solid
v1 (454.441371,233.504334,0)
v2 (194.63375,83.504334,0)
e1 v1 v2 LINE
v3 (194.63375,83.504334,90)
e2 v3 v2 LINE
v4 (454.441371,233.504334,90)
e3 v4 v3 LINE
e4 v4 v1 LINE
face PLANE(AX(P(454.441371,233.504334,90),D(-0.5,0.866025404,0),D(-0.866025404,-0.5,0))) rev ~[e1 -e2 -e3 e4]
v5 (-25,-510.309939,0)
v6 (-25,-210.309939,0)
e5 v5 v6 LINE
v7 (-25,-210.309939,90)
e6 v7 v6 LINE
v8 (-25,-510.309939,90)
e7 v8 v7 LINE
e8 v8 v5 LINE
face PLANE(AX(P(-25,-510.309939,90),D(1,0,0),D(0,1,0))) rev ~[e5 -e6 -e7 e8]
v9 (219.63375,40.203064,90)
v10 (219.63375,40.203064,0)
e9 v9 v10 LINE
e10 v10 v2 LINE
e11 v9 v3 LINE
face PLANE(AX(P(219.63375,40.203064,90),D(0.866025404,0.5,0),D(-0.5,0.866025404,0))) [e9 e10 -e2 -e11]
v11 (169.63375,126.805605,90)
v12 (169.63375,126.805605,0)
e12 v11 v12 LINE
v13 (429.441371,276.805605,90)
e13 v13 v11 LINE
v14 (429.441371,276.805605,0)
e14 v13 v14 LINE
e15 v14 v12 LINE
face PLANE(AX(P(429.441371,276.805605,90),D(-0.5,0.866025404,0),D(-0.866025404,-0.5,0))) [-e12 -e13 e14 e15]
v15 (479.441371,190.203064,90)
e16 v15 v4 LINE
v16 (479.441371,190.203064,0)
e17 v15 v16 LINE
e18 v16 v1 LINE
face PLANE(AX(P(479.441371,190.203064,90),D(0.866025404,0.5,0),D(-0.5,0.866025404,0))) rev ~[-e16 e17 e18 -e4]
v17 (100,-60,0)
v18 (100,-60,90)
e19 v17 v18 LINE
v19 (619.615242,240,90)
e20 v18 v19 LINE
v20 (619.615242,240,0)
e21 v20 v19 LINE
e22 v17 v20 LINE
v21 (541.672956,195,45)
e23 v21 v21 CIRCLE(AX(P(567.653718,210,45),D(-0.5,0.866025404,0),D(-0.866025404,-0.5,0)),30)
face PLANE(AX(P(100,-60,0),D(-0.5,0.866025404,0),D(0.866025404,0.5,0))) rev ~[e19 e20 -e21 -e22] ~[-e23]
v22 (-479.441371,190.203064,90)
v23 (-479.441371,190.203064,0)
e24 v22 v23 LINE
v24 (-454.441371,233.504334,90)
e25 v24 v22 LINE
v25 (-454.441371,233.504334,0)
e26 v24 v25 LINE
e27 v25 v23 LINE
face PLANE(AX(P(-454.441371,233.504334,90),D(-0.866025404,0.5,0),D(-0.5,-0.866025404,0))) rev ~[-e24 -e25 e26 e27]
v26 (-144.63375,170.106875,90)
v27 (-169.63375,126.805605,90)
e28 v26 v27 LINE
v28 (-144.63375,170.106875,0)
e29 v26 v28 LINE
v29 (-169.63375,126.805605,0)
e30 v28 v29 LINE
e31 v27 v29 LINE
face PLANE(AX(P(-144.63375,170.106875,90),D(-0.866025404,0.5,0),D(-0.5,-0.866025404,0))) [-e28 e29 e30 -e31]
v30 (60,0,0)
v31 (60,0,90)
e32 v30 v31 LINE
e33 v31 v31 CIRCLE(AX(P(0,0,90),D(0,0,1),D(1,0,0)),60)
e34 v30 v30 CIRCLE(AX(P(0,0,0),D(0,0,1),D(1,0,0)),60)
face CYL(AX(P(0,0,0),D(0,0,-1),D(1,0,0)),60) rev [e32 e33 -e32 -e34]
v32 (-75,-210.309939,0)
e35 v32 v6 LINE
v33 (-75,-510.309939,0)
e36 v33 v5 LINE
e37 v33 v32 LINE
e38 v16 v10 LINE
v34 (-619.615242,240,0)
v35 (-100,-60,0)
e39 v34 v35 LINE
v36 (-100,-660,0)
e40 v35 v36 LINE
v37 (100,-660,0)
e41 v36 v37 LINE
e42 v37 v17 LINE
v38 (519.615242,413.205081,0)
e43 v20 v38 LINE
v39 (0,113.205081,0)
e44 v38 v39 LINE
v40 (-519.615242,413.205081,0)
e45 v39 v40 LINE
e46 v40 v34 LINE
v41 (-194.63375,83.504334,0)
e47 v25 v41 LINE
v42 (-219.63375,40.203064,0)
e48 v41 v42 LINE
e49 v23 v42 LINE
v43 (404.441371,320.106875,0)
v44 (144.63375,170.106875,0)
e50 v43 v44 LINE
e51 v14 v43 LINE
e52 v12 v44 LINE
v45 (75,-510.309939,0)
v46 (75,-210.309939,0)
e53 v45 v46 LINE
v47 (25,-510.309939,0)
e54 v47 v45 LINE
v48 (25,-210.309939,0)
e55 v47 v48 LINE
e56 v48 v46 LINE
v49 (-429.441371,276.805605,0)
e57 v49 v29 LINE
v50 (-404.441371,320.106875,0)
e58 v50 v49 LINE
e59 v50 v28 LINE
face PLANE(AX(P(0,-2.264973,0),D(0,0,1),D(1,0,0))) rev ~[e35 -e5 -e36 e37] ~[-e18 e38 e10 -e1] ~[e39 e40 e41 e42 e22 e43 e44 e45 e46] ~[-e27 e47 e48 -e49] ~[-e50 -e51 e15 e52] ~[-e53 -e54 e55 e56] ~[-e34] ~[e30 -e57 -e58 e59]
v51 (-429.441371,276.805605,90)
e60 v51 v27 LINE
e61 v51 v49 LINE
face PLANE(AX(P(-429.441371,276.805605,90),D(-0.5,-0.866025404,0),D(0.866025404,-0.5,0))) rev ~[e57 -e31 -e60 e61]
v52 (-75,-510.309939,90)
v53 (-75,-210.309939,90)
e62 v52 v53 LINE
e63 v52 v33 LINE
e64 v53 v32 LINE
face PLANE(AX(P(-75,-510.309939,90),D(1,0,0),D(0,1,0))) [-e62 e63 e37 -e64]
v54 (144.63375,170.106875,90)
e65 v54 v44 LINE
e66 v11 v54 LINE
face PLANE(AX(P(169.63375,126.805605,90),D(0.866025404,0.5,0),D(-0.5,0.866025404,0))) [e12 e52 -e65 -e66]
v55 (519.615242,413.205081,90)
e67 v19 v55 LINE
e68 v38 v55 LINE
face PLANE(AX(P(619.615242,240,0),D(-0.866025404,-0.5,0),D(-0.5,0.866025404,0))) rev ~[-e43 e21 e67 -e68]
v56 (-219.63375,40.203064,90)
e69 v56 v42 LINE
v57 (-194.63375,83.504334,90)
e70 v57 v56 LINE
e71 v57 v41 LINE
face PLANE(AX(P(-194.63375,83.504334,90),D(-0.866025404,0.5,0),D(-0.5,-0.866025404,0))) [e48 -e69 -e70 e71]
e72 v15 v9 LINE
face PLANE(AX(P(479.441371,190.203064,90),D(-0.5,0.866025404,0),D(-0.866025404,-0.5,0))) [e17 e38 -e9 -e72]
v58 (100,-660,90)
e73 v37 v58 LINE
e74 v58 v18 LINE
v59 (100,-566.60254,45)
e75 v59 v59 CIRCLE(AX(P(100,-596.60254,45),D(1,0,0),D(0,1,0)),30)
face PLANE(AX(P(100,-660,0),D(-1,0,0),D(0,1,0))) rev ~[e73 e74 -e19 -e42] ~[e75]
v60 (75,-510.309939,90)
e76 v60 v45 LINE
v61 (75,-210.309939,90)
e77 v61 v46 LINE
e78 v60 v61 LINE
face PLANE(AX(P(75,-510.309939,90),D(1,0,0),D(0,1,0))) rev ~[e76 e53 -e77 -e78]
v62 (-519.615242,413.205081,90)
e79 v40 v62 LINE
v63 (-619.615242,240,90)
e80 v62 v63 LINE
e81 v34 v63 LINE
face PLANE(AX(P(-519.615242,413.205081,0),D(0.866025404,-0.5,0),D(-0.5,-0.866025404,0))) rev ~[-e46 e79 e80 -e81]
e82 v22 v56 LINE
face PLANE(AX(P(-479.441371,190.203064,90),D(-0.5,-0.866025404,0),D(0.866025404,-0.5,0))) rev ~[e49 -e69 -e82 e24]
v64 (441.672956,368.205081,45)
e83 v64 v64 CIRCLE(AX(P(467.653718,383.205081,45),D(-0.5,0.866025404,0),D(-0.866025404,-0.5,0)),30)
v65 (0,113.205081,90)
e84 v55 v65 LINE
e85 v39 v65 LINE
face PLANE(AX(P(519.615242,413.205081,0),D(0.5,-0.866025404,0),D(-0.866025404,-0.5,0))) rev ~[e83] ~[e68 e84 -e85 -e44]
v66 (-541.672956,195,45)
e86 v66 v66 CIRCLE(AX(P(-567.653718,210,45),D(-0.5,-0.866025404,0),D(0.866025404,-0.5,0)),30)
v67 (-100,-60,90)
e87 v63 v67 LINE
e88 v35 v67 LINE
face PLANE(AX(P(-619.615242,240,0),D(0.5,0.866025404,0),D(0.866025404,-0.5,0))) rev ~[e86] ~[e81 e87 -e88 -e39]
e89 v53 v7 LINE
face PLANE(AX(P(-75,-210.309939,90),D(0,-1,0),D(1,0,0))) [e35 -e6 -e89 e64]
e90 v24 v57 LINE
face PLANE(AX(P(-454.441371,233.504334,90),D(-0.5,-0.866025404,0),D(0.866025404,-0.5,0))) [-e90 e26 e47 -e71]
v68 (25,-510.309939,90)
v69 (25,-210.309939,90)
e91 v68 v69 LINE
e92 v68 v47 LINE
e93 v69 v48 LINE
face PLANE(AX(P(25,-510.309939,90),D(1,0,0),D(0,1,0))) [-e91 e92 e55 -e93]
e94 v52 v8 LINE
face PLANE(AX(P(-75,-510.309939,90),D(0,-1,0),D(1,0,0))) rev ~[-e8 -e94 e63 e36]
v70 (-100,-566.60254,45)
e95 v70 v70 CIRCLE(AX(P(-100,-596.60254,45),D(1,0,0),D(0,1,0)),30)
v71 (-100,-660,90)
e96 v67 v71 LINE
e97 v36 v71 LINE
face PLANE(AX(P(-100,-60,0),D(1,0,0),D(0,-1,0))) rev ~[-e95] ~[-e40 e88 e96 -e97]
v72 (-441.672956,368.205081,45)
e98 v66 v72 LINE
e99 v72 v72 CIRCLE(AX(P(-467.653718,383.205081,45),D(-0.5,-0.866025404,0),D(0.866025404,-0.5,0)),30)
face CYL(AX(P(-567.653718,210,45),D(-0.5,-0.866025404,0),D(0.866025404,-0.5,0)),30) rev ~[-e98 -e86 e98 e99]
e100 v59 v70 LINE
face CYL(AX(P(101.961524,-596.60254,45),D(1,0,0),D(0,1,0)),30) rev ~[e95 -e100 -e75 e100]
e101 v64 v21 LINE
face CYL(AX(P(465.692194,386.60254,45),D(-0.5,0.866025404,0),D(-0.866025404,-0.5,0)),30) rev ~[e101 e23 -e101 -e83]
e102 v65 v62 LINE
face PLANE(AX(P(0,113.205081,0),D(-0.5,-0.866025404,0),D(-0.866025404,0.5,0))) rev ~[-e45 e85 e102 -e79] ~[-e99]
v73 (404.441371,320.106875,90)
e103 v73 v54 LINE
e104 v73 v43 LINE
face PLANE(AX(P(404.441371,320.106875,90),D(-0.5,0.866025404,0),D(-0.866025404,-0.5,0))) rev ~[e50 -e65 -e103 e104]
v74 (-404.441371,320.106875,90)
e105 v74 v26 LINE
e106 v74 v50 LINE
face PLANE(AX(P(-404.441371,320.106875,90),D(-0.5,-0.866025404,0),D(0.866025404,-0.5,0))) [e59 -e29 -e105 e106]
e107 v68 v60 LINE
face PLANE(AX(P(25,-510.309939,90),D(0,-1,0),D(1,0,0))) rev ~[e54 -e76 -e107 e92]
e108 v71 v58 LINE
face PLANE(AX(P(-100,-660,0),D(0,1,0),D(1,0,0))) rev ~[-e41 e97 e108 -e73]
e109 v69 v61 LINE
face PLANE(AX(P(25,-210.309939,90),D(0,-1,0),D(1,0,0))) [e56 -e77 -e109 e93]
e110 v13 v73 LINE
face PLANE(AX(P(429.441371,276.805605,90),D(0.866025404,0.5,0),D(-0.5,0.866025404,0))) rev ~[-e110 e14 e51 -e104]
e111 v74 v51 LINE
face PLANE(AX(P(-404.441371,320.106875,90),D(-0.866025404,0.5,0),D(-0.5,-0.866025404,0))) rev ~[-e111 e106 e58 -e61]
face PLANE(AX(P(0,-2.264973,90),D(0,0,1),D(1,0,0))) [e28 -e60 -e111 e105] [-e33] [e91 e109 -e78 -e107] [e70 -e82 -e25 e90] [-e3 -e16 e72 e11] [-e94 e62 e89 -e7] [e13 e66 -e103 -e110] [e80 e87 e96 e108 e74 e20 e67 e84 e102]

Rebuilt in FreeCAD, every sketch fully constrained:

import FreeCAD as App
import Part
import Sketcher
from FreeCAD import Vector
Q = App.Units.Quantity


def add_polygon(sketch, points):
    """Adds a closed chain of lines whose ends are joined by coincident constraints."""
    first, n = sketch.GeometryCount, len(points)
    for a, b in zip(points, points[1:] + points[:1]):
        sketch.addGeometry(Part.LineSegment(App.Vector(*a, 0), App.Vector(*b, 0)), False)
    for i in range(n):
        sketch.addConstraint(Sketcher.Constraint("Coincident", first + i, 2, first + (i + 1) % n, 1))

doc = App.newDocument("Part")
body = doc.addObject("PartDesign::Body", "Body")

# Sketch on XY plane
sketch1 = body.newObject("Sketcher::SketchObject", "Sketch")
sketch1.AttachmentSupport = (doc.getObject("XY_Plane"), [""])
sketch1.MapMode = "FlatFace"
add_polygon(sketch1, [(-100, -60), (-100, -660), (100, -660), (100, -60), (620, 240), (520, 413), (0, 113), (-520, 413), (-620, 240)])  # lines 0-8
sketch1.addGeometry(Part.Circle(Vector(0, 0, 0), Vector(0, 0, 1), 60), False)  # 9
sketch1.addConstraint(Sketcher.Constraint("Vertical", 0))
sketch1.addConstraint(Sketcher.Constraint("Horizontal", 1))
sketch1.addConstraint(Sketcher.Constraint("Vertical", 2))
sketch1.addConstraint(Sketcher.Constraint("Coincident", 9, 3, -1, 1))
sketch1.addConstraint(Sketcher.Constraint("Symmetric", 4, 2, 6, 2, -2))
sketch1.addConstraint(Sketcher.Constraint("Symmetric", 3, 2, 7, 2, -2))
sketch1.addConstraint(Sketcher.Constraint("Symmetric", 2, 2, 8, 2, -2))
sketch1.addConstraint(Sketcher.Constraint("PointOnObject", 5, 2, -2))
sketch1.addConstraint(Sketcher.Constraint("Perpendicular", 3, 4))
sketch1.addConstraint(Sketcher.Constraint("Perpendicular", 4, 5))
sketch1.addConstraint(Sketcher.Constraint("Equal", 3, 5))
sketch1.addConstraint(Sketcher.Constraint("Diameter", 9, 120.0))
sketch1.addConstraint(Sketcher.Constraint("DistanceX", 1, 1, 1, 2, 200.0))
sketch1.addConstraint(Sketcher.Constraint("DistanceY", 0, 2, 0, 1, 600.0))
sketch1.addConstraint(Sketcher.Constraint("Angle", 3, Q("30 deg")))
sketch1.addConstraint(Sketcher.Constraint("Distance", 3, 600.0))
sketch1.addConstraint(Sketcher.Constraint("DistanceY", 0, 2, -1, 1, 660.0))
pad1 = body.newObject("PartDesign::Pad", "Pad")
pad1.Profile = sketch1
pad1.Length = 90

# Sketch on XY plane
sketch2 = body.newObject("Sketcher::SketchObject", "Sketch001")
sketch2.AttachmentSupport = (doc.getObject("XY_Plane"), [""])
sketch2.MapMode = "FlatFace"
sketch2.AttachmentOffset = App.Placement(Vector(0, 0, 90), App.Rotation())
add_polygon(sketch2, [(-75, -210), (-75, -510), (-25, -510), (-25, -210)])  # lines 0-3
add_polygon(sketch2, [(25, -210), (25, -510), (75, -510), (75, -210)])  # lines 4-7
sketch2.addConstraint(Sketcher.Constraint("Vertical", 0))
sketch2.addConstraint(Sketcher.Constraint("Horizontal", 1))
sketch2.addConstraint(Sketcher.Constraint("Vertical", 2))
sketch2.addConstraint(Sketcher.Constraint("Horizontal", 3))
sketch2.addConstraint(Sketcher.Constraint("Vertical", 4))
sketch2.addConstraint(Sketcher.Constraint("Horizontal", 5))
sketch2.addConstraint(Sketcher.Constraint("Vertical", 6))
sketch2.addConstraint(Sketcher.Constraint("Horizontal", 7))
sketch2.addConstraint(Sketcher.Constraint("Symmetric", 1, 2, 4, 2, -2))
sketch2.addConstraint(Sketcher.Constraint("Symmetric", 3, 2, 6, 2, -2))
sketch2.addConstraint(Sketcher.Constraint("DistanceX", 1, 1, 1, 2, 50.0))
sketch2.addConstraint(Sketcher.Constraint("DistanceY", 0, 2, 0, 1, 300.0))
sketch2.addConstraint(Sketcher.Constraint("DistanceX", 0, 2, -1, 1, 75.0))
sketch2.addConstraint(Sketcher.Constraint("DistanceY", 0, 2, -1, 1, 510.309939))
pocket1 = body.newObject("PartDesign::Pocket", "Pocket")
pocket1.Profile = sketch2
pocket1.Length = 90
doc.recompute()

polarpattern = body.newObject("PartDesign::PolarPattern", "PolarPattern")
polarpattern.Originals = [pocket1]
polarpattern.Axis = (doc.getObject("Z_Axis"), [""])
polarpattern.Angle = 360
polarpattern.Occurrences = 3
body.Tip = polarpattern

# Sketch on an angled plane
sketch3 = body.newObject("Sketcher::SketchObject", "Sketch002")
sketch3.Placement = App.Placement(Vector(-50.980762, -88.30127, 0), App.Rotation(Vector(0.866025404, -0.5, 0), Vector(0, 0, 1), Vector(-0.5, -0.866025404, 0), "ZXY"))
sketch3.addGeometry(Part.Circle(Vector(-597, 45, 0), Vector(0, 0, 1), 30), False)
sketch3.addConstraint(Sketcher.Constraint("Diameter", 0, 60.0))
sketch3.addConstraint(Sketcher.Constraint("DistanceY", -1, 1, 0, 3, 45.0))
sketch3.addConstraint(Sketcher.Constraint("DistanceX", 0, 3, -1, 1, 596.602541))
pocket2 = body.newObject("PartDesign::Pocket", "Pocket001")
pocket2.Profile = sketch3
pocket2.Type = "ThroughAll"
doc.recompute()

polarpattern2 = body.newObject("PartDesign::PolarPattern", "PolarPattern001")
polarpattern2.Originals = [pocket2]
polarpattern2.Axis = (doc.getObject("Z_Axis"), [""])
polarpattern2.Angle = 360
polarpattern2.Occurrences = 3
body.Tip = polarpattern2

doc.recompute()
